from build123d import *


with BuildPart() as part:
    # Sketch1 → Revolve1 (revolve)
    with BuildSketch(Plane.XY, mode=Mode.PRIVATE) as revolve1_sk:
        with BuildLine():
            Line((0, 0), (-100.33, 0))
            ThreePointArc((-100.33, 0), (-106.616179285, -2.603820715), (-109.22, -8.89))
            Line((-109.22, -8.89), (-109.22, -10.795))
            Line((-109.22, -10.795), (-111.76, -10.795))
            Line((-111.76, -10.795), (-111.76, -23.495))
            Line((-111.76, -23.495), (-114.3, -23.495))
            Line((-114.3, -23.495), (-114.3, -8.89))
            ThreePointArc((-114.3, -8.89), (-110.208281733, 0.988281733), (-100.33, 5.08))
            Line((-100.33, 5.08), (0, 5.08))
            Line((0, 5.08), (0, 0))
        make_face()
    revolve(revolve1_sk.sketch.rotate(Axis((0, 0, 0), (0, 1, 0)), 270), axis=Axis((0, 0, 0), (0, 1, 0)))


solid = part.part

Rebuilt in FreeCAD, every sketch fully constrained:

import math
import FreeCAD as App
import Part
import Sketcher

V = App.Vector
Q = App.Units.Quantity

doc = App.newDocument("Part")
body = doc.addObject("PartDesign::Body", "Body")

# Sketch on XY plane
sketch1 = body.newObject("Sketcher::SketchObject", "Sketch")
sketch1.AttachmentSupport = (doc.getObject("XY_Plane"), [""])
sketch1.MapMode = "FlatFace"
sketch1.addGeometry([
    Part.LineSegment(V(-100.33, 0, 0), V(0, 0, 0)),  # 0
    Part.LineSegment(V(0, 0, 0), V(0, 5.08, 0)),  # 1
    Part.LineSegment(V(0, 5.08, 0), V(-100.33, 5.08, 0)),  # 2
    Part.ArcOfCircle(Part.Circle(V(-100.33, -8.89, 0), V(0, 0, 1), 13.97), math.radians(90), math.radians(180)),  # 3
    Part.LineSegment(V(-114.3, -8.89, 0), V(-114.3, -23.495, 0)),  # 4
    Part.LineSegment(V(-114.3, -23.495, 0), V(-111.76, -23.495, 0)),  # 5
    Part.LineSegment(V(-111.76, -23.495, 0), V(-111.76, -10.795, 0)),  # 6
    Part.LineSegment(V(-111.76, -10.795, 0), V(-109.22, -10.795, 0)),  # 7
    Part.LineSegment(V(-109.22, -10.795, 0), V(-109.22, -8.89, 0)),  # 8
    Part.ArcOfCircle(Part.Circle(V(-100.33, -8.89, 0), V(0, 0, 1), 8.89), math.radians(90), math.radians(180)),  # 9
], False)
sketch1.addConstraint([
    Sketcher.Constraint("Coincident", 0, 2, 1, 1),
    Sketcher.Constraint("Coincident", 1, 2, 2, 1),
    Sketcher.Constraint("Tangent", 2, 2, 3, 1),
    Sketcher.Constraint("Tangent", 3, 2, 4, 1),
    Sketcher.Constraint("Coincident", 4, 2, 5, 1),
    Sketcher.Constraint("Coincident", 5, 2, 6, 1),
    Sketcher.Constraint("Coincident", 6, 2, 7, 1),
    Sketcher.Constraint("Coincident", 7, 2, 8, 1),
    Sketcher.Constraint("Tangent", 8, 2, 9, 2),
    Sketcher.Constraint("Tangent", 9, 1, 0, 1),
    Sketcher.Constraint("Horizontal", 0),
    Sketcher.Constraint("Vertical", 1),
    Sketcher.Constraint("Horizontal", 2),
    Sketcher.Constraint("Vertical", 4),
    Sketcher.Constraint("Horizontal", 5),
    Sketcher.Constraint("Vertical", 6),
    Sketcher.Constraint("Horizontal", 7),
    Sketcher.Constraint("Vertical", 8),
    Sketcher.Constraint("Coincident", 0, 2, -1, 1),
    Sketcher.Constraint("Coincident", 9, 3, 3, 3),
    Sketcher.Constraint("Equal", 5, 7),
    Sketcher.Constraint("Radius", 3, Q("0.55 in")),
    Sketcher.Constraint("Radius", 9, Q("0.35 in")),
    Sketcher.Constraint("DistanceY", 6, 1, 6, 2, Q("0.5 in")),
    Sketcher.Constraint("DistanceX", 0, 1, 0, 2, Q("3.95 in")),
    Sketcher.Constraint("DistanceY", 4, 2, 4, 1, Q("0.575 in")),
])
revolution = body.newObject("PartDesign::Revolution", "Revolution")
revolution.Profile = sketch1
revolution.ReferenceAxis = (sketch1, ["V_Axis"])
revolution.Angle = 360

doc.recompute()
